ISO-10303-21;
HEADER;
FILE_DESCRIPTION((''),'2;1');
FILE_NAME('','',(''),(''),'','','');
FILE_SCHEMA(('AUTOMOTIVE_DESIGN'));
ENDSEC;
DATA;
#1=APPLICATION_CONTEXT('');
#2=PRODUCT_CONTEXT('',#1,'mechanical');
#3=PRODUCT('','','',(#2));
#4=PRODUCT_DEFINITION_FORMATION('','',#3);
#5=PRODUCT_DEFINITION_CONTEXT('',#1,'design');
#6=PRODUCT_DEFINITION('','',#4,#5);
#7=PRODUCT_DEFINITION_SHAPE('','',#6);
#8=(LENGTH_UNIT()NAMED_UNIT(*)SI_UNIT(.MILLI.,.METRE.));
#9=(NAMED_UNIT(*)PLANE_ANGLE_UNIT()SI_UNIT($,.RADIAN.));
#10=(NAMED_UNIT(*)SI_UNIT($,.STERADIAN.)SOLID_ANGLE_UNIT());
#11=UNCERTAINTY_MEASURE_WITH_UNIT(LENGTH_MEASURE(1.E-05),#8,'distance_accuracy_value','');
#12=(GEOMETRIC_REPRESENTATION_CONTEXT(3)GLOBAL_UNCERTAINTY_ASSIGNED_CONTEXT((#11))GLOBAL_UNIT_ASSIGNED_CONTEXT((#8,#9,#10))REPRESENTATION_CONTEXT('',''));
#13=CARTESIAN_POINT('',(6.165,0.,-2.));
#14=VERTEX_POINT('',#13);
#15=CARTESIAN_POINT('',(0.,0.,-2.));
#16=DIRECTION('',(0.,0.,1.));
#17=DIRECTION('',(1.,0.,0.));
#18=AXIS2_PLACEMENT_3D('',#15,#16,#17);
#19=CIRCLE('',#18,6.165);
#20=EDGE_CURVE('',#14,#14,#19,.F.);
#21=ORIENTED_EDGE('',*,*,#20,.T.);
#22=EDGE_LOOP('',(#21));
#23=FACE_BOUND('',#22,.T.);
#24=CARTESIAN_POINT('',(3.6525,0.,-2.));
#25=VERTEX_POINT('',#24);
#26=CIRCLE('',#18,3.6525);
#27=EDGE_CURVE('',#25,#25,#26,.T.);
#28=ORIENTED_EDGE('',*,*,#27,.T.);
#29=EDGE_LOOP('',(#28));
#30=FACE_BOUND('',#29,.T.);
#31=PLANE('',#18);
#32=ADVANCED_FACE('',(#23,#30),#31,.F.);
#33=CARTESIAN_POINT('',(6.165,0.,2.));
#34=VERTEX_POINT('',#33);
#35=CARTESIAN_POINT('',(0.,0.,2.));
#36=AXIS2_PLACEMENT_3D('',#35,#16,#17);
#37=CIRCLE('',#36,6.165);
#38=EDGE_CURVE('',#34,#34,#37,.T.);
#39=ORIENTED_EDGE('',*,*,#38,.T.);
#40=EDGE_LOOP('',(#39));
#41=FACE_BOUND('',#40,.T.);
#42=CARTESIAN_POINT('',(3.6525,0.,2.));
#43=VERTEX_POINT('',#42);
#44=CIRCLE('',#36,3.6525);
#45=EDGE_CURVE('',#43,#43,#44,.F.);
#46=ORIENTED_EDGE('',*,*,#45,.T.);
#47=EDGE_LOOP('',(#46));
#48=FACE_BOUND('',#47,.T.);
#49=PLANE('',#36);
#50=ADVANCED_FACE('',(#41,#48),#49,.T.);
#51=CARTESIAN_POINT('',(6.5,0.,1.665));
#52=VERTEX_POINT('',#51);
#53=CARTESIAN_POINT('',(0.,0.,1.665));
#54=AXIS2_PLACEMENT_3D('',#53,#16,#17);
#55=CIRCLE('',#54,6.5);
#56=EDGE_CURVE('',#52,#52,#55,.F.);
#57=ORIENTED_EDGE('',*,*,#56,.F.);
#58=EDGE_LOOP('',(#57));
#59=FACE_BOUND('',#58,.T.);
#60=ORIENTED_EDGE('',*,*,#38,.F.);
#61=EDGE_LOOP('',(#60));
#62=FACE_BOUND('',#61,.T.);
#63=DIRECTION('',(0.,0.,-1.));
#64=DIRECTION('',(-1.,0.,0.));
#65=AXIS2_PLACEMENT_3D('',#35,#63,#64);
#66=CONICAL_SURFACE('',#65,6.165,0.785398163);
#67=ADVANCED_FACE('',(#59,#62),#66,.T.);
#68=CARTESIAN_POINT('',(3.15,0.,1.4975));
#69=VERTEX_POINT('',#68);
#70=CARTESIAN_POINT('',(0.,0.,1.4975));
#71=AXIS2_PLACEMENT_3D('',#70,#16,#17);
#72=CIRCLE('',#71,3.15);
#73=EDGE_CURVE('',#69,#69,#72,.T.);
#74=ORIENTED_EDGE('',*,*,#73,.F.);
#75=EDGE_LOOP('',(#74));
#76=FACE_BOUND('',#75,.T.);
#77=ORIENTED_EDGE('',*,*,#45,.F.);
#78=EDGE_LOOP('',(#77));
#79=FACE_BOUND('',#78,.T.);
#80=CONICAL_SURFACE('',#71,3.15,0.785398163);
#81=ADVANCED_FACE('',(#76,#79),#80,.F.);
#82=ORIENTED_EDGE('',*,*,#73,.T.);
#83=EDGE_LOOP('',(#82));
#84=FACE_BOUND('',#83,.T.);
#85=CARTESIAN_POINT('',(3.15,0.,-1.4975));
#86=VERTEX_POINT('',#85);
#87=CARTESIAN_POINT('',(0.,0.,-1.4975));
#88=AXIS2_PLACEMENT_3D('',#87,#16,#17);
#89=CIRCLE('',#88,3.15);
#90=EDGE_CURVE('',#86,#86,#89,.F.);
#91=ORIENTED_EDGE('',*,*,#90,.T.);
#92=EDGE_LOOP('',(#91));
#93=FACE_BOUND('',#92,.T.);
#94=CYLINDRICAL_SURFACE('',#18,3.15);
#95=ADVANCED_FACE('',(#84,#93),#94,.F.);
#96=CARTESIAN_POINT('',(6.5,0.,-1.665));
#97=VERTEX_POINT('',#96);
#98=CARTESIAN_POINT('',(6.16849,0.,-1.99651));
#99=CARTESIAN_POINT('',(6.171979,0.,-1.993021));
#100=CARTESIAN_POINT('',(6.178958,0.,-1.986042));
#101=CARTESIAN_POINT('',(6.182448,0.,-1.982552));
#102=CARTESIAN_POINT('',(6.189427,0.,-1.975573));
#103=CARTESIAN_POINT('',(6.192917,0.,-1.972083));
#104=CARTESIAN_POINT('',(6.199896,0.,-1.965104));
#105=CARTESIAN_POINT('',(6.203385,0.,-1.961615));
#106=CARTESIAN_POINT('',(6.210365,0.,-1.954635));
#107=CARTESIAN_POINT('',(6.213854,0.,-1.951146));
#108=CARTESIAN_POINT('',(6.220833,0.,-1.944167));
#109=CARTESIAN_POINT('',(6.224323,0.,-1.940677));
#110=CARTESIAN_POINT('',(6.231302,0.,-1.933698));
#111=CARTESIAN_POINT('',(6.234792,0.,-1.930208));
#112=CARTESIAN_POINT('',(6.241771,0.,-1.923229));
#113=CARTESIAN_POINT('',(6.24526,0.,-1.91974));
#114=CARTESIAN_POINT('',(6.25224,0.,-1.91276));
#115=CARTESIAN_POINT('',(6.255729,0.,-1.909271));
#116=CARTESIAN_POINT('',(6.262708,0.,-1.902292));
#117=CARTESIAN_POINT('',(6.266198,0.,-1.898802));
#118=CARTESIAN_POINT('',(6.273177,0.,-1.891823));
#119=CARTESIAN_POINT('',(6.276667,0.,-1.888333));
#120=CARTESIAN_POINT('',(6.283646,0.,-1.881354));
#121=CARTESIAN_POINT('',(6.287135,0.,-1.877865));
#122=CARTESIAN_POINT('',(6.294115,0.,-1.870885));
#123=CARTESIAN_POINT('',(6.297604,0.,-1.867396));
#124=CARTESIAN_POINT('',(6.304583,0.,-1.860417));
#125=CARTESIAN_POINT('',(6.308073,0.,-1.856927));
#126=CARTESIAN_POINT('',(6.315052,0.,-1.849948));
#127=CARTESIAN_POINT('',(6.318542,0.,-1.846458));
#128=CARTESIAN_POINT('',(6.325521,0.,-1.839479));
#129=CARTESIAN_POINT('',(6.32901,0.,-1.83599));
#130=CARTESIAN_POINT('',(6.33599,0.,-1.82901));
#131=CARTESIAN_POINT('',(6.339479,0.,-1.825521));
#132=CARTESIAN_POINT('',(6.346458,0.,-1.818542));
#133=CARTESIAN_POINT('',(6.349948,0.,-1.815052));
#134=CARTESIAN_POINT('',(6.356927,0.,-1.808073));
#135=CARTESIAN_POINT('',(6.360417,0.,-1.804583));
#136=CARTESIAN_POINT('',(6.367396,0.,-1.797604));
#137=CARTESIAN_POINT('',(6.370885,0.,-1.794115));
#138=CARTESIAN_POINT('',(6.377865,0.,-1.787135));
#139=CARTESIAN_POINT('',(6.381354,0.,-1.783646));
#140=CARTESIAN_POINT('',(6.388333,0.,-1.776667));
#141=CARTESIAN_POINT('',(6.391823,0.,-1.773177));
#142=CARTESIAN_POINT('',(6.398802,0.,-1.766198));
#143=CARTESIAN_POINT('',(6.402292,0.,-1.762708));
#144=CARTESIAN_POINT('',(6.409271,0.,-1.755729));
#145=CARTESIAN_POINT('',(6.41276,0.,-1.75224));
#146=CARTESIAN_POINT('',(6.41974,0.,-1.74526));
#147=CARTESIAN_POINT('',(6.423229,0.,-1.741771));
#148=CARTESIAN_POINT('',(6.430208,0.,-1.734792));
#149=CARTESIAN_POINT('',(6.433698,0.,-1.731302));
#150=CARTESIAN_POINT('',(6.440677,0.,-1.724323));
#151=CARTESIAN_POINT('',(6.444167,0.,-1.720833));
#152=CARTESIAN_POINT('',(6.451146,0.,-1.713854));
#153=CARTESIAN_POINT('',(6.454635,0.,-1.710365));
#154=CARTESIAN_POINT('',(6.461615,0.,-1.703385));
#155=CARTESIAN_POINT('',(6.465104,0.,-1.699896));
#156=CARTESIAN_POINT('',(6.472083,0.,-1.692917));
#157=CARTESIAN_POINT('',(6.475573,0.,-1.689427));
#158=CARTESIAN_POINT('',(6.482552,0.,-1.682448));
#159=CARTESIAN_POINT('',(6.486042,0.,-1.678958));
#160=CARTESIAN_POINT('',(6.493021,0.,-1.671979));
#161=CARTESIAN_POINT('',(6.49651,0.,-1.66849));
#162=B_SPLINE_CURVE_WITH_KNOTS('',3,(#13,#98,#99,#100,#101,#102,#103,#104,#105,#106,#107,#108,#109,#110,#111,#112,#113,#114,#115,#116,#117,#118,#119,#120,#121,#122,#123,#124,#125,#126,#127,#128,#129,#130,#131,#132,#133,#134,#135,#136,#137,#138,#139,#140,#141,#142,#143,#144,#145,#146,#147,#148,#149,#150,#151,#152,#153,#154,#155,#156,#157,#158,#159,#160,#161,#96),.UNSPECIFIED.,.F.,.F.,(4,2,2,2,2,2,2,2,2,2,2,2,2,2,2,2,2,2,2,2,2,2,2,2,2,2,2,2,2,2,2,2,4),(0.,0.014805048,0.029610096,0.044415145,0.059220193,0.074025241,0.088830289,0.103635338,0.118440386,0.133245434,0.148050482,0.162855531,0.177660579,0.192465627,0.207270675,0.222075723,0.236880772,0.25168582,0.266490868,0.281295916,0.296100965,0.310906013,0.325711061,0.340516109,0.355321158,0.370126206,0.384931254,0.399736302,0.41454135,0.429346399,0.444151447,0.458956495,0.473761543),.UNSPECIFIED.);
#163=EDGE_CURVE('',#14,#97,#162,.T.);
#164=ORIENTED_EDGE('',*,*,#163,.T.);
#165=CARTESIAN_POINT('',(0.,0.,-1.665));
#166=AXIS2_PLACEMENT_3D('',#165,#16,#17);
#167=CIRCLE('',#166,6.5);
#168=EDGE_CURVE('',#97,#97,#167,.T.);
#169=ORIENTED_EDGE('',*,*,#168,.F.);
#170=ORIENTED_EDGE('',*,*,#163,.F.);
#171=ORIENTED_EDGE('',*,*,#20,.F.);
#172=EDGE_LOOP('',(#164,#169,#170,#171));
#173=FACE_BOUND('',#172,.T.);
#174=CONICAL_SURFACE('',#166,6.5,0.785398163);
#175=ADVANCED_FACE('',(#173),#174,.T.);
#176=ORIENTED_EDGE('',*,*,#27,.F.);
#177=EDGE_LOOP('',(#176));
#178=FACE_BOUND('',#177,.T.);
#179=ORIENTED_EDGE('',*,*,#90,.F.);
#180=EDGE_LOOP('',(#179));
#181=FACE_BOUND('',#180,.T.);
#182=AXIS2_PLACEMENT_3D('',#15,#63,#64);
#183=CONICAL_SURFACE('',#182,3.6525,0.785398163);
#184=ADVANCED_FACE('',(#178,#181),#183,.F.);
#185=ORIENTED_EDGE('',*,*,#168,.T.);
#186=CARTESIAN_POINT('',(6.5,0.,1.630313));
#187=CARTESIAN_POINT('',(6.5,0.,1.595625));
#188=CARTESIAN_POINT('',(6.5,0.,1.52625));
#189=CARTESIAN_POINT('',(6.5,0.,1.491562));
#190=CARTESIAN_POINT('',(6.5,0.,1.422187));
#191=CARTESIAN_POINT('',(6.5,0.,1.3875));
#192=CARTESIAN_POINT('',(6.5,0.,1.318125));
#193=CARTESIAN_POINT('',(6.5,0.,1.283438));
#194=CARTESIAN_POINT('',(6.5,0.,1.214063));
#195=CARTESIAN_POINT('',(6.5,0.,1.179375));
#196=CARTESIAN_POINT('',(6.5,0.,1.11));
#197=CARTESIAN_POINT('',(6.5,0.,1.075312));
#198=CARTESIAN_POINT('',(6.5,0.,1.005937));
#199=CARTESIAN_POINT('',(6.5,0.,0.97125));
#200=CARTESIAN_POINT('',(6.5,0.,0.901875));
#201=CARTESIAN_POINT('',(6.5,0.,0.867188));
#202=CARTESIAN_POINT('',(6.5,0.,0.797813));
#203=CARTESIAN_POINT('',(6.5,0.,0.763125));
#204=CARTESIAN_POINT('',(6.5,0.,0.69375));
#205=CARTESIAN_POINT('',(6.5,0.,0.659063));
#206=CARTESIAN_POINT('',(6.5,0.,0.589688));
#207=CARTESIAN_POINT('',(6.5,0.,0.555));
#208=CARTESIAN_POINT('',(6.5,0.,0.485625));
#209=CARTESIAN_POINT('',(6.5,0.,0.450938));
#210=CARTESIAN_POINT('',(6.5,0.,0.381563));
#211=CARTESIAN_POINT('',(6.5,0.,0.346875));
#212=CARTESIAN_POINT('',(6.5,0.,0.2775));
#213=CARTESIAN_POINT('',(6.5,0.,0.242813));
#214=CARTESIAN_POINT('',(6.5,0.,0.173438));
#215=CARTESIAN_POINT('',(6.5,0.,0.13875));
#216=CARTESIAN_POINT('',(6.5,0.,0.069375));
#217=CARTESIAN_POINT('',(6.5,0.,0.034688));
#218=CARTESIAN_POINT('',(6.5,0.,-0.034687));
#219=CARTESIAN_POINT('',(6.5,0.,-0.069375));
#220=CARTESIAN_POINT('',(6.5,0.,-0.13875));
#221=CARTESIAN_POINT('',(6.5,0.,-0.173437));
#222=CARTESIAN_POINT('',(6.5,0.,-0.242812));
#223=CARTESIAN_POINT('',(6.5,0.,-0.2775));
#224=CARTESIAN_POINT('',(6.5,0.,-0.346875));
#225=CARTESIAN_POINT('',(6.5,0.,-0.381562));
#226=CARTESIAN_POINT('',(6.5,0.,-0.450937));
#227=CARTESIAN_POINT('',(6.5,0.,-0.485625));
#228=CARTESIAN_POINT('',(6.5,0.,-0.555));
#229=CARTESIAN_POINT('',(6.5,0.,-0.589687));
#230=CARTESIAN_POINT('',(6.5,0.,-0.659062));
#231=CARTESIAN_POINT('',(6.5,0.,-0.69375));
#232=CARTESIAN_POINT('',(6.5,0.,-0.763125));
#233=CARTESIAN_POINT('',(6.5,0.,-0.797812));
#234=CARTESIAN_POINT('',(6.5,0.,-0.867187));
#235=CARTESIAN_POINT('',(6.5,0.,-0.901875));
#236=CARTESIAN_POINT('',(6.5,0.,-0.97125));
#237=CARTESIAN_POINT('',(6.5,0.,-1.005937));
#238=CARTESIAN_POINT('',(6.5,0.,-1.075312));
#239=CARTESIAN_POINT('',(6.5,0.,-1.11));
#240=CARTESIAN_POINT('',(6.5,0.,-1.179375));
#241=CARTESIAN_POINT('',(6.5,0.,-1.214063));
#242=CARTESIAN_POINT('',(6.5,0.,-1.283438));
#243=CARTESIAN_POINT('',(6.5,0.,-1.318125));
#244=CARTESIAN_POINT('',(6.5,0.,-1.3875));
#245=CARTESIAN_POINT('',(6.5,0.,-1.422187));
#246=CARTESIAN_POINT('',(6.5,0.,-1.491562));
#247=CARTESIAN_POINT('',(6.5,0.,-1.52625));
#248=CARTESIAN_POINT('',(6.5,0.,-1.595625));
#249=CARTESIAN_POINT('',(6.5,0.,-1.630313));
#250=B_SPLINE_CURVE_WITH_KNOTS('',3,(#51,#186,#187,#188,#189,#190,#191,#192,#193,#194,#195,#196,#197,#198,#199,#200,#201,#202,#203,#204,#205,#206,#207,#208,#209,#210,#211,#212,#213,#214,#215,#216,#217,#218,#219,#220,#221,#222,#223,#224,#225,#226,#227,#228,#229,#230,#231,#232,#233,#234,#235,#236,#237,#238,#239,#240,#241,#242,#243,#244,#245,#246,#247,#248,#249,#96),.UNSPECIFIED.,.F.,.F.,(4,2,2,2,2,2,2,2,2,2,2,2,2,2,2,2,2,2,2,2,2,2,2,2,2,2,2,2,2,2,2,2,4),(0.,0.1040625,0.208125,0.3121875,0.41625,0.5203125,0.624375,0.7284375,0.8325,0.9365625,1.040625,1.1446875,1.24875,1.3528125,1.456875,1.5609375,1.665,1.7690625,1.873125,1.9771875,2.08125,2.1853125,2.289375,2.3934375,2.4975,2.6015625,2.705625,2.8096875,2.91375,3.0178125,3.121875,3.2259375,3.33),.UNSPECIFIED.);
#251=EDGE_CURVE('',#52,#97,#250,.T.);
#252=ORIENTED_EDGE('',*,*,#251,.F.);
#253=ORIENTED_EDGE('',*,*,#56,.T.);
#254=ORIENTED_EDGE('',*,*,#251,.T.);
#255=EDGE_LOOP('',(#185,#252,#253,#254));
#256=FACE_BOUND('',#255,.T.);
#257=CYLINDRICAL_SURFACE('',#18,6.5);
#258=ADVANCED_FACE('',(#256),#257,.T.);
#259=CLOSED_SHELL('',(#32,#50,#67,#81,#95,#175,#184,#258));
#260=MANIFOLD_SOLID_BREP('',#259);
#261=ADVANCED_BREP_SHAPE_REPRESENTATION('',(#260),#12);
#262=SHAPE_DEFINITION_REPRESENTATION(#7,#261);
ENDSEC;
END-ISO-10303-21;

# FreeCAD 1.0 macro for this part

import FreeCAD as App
import Part
import Sketcher


def edges_at(feature, points):
    """Names of the edges that pass closest to the given points."""
    edges = feature.Shape.Edges
    near = lambda p: min(range(len(edges)), key=lambda i: edges[i].distToShape(Part.Vertex(*p))[0])
    return sorted({f"Edge{near(p) + 1}" for p in points})

doc = App.newDocument("Part")
body = doc.addObject("PartDesign::Body", "Body")

# Sketch on XY plane
sketch1 = body.newObject("Sketcher::SketchObject", "Sketch")
sketch1.AttachmentSupport = (doc.getObject("XY_Plane"), [""])
sketch1.MapMode = "FlatFace"
sketch1.addGeometry([
    Part.Circle(App.Vector(0, 0, 0), App.Vector(0, 0, 1), 6.5),
    Part.Circle(App.Vector(0, 0, 0), App.Vector(0, 0, 1), 3.15),
], False)
sketch1.addConstraint([
    Sketcher.Constraint("Coincident", 0, 3, -1, 1),
    Sketcher.Constraint("Coincident", 1, 3, -1, 1),
    Sketcher.Constraint("Diameter", 0, 13.0),
    Sketcher.Constraint("Diameter", 1, 6.3),
])
pad1 = body.newObject("PartDesign::Pad", "Pad")
pad1.Profile = sketch1
pad1.Type = "TwoLengths"
pad1.Length = 2
pad1.Length2 = 2
doc.recompute()

chamfer = body.newObject("PartDesign::Chamfer", "Chamfer")
chamfer.Base = (pad1, edges_at(pad1, [(-6.5, 0, -2), (-6.5, 0, 2)]))
chamfer.Size = 0.335
doc.recompute()

chamfer2 = body.newObject("PartDesign::Chamfer", "Chamfer001")
chamfer2.Base = (chamfer, edges_at(chamfer, [(-3.15, 0, -2), (-3.15, 0, 2)]))
chamfer2.Size = 0.5025

doc.recompute()
